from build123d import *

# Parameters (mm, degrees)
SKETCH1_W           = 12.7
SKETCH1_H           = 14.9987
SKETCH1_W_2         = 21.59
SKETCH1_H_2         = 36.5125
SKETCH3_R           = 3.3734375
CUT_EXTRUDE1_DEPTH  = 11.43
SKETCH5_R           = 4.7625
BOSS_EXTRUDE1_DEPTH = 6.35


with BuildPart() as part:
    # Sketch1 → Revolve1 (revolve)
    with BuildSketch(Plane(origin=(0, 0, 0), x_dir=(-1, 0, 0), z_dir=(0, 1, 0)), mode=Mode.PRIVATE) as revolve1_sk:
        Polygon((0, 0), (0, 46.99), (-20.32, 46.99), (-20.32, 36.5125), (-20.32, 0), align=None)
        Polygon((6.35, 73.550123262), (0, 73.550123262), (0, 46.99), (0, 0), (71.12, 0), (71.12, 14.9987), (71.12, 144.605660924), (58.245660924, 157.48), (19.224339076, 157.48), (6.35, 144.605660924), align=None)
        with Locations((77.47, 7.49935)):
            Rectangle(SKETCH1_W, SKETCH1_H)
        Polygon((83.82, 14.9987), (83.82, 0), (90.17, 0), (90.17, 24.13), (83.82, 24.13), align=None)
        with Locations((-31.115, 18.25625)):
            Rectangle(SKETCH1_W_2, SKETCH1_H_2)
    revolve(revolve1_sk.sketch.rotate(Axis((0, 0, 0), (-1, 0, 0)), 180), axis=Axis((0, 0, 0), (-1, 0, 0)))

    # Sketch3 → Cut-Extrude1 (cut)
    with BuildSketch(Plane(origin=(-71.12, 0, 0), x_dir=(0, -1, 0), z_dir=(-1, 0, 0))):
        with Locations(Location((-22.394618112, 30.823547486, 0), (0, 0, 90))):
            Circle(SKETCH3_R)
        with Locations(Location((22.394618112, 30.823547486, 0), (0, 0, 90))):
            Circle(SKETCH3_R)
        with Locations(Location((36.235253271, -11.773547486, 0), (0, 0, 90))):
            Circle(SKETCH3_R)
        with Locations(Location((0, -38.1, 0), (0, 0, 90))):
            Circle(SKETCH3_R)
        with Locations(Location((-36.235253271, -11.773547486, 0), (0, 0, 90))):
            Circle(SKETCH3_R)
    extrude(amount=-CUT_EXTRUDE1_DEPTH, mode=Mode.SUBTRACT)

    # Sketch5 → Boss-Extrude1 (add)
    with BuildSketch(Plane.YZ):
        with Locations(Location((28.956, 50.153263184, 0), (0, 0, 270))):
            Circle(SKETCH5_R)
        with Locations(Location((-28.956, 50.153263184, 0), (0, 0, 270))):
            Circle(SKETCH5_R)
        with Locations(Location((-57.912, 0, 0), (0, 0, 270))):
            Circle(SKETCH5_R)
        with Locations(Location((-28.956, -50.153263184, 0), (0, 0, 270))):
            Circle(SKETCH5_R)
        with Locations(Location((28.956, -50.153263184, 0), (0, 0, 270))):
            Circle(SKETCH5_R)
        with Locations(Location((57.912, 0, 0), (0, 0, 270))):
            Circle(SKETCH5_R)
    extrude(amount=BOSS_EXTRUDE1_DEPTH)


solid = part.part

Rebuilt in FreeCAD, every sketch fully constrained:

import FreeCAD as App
import Part
import Sketcher
Q = App.Units.Quantity

doc = App.newDocument("Part")
params = doc.addObject("Spreadsheet::Sheet", "Params")
for row, (alias, value) in enumerate([
    ("sketch1_width", "0.8 in"),
    ("sketch1_width2", "5.2 in"),
    ("sketch1_width3", "0.5 in"),
    ("sketch1_width4", "0.85 in"),
    ("sketch1_width5", "0.25 in"),
    ("revolution_angle", "360 deg"),
    ("sketch2_diameter", "0.265625 in"),
    ("pocket1_length", "0.45 in"),
    ("sketch3_diameter", "0.375 in"),
    ("pad1_length", "0.25 in"),
], start=1):
    params.set(f"A{row}", alias)
    params.set(f"B{row}", "=" + value)
    params.setAlias(f"B{row}", alias)

body = doc.addObject("PartDesign::Body", "Body")

sketch1 = body.newObject("Sketcher::SketchObject", "Sketch")
sketch1.AttachmentSupport = (doc.getObject("XZ_Plane"), [""])
sketch1.MapMode = "FlatFace"
sketch1.addGeometry([
    Part.LineSegment(App.Vector(0, 47, 0), App.Vector(20, 47, 0)),
    Part.LineSegment(App.Vector(20, 47, 0), App.Vector(20, 37, 0)),
    Part.LineSegment(App.Vector(20, 37, 0), App.Vector(42, 37, 0)),
    Part.LineSegment(App.Vector(42, 37, 0), App.Vector(42, 0, 0)),
    Part.LineSegment(App.Vector(42, 0, 0), App.Vector(-90, 0, 0)),
    Part.LineSegment(App.Vector(-90, 0, 0), App.Vector(-90, 24, 0)),
    Part.LineSegment(App.Vector(-90, 24, 0), App.Vector(-84, 24, 0)),
    Part.LineSegment(App.Vector(-84, 24, 0), App.Vector(-84, 15, 0)),
    Part.LineSegment(App.Vector(-84, 15, 0), App.Vector(-71, 15, 0)),
    Part.LineSegment(App.Vector(-71, 15, 0), App.Vector(-71, 145, 0)),
    Part.LineSegment(App.Vector(-71, 145, 0), App.Vector(-58, 157, 0)),
    Part.LineSegment(App.Vector(-58, 157, 0), App.Vector(-19, 157, 0)),
    Part.LineSegment(App.Vector(-19, 157, 0), App.Vector(-6, 145, 0)),
    Part.LineSegment(App.Vector(-6, 145, 0), App.Vector(-6, 74, 0)),
    Part.LineSegment(App.Vector(-6, 74, 0), App.Vector(0, 74, 0)),
    Part.LineSegment(App.Vector(0, 74, 0), App.Vector(0, 47, 0)),
], False)
sketch1.addConstraint([
    Sketcher.Constraint("Coincident", 0, 2, 1, 1),
    Sketcher.Constraint("Coincident", 1, 2, 2, 1),
    Sketcher.Constraint("Coincident", 2, 2, 3, 1),
    Sketcher.Constraint("Coincident", 3, 2, 4, 1),
    Sketcher.Constraint("Coincident", 4, 2, 5, 1),
    Sketcher.Constraint("Coincident", 5, 2, 6, 1),
    Sketcher.Constraint("Coincident", 6, 2, 7, 1),
    Sketcher.Constraint("Coincident", 7, 2, 8, 1),
    Sketcher.Constraint("Coincident", 8, 2, 9, 1),
    Sketcher.Constraint("Coincident", 9, 2, 10, 1),
    Sketcher.Constraint("Coincident", 10, 2, 11, 1),
    Sketcher.Constraint("Coincident", 11, 2, 12, 1),
    Sketcher.Constraint("Coincident", 12, 2, 13, 1),
    Sketcher.Constraint("Coincident", 13, 2, 14, 1),
    Sketcher.Constraint("Coincident", 14, 2, 15, 1),
    Sketcher.Constraint("Coincident", 15, 2, 0, 1),
    Sketcher.Constraint("Horizontal", 0),
    Sketcher.Constraint("Vertical", 1),
    Sketcher.Constraint("Horizontal", 2),
    Sketcher.Constraint("Vertical", 3),
    Sketcher.Constraint("Horizontal", 4),
    Sketcher.Constraint("Vertical", 5),
    Sketcher.Constraint("Horizontal", 6),
    Sketcher.Constraint("Vertical", 7),
    Sketcher.Constraint("Horizontal", 8),
    Sketcher.Constraint("Vertical", 9),
    Sketcher.Constraint("Horizontal", 11),
    Sketcher.Constraint("Vertical", 13),
    Sketcher.Constraint("Horizontal", 14),
    Sketcher.Constraint("Vertical", 15),
    Sketcher.Constraint("PointOnObject", 3, 2, -1),
    Sketcher.Constraint("PointOnObject", 14, 2, -2),
    Sketcher.Constraint("Perpendicular", 10, 12),
    Sketcher.Constraint("Horizontal", 9, 2, 12, 2),
    Sketcher.Constraint("Equal", 6, 14),
    Sketcher.Constraint("Equal", 10, 12),
    Sketcher.Constraint("DistanceX", 0, 1, 0, 2, Q("0.8 in")),
    Sketcher.Constraint("DistanceX", 4, 2, 4, 1, Q("5.2 in")),
    Sketcher.Constraint("DistanceX", 8, 1, 8, 2, Q("0.5 in")),
    Sketcher.Constraint("DistanceX", 2, 1, 2, 2, Q("0.85 in")),
    Sketcher.Constraint("DistanceX", 6, 1, 6, 2, Q("0.25 in")),
    Sketcher.Constraint("DistanceY", 5, 1, 5, 2, Q("0.95 in")),
    Sketcher.Constraint("DistanceY", -1, 1, 10, 2, Q("6.2 in")),
    Sketcher.Constraint("DistanceY", 5, 2, 0, 2, Q("0.9 in")),
    Sketcher.Constraint("DistanceY", 3, 2, 3, 1, Q("1.4375 in")),
    Sketcher.Constraint("DistanceY", 7, 2, 7, 1, Q("0.3595 in")),
    Sketcher.Constraint("DistanceX", 11, 1, 11, 2, 39.021322),
    Sketcher.Constraint("DistanceY", 13, 2, 13, 1, 71.055538),
])
sketch1.setExpression("Constraints[36]", "Params.sketch1_width")
sketch1.setExpression("Constraints[37]", "Params.sketch1_width2")
sketch1.setExpression("Constraints[38]", "Params.sketch1_width3")
sketch1.setExpression("Constraints[39]", "Params.sketch1_width4")
sketch1.setExpression("Constraints[40]", "Params.sketch1_width5")
revolution = body.newObject("PartDesign::Revolution", "Revolution")
revolution.Profile = sketch1
revolution.ReferenceAxis = (sketch1, ["H_Axis"])
revolution.setExpression("Angle", "Params.revolution_angle")

sketch2 = body.newObject("Sketcher::SketchObject", "Sketch001")
sketch2.AttachmentSupport = (doc.getObject("YZ_Plane"), [""])
sketch2.MapMode = "FlatFace"
sketch2.AttachmentOffset = App.Placement(App.Vector(0, 0, -2.8 * 25.4), App.Rotation())
sketch2.addGeometry([
    Part.Circle(App.Vector(22.4, 30.8, 0), App.Vector(0, 0, 1), 3.4),
    Part.Circle(App.Vector(-22.4, 30.8, 0), App.Vector(0, 0, 1), 3.4),
    Part.Circle(App.Vector(-36.2, -11.8, 0), App.Vector(0, 0, 1), 3.4),
    Part.Circle(App.Vector(0, -38.1, 0), App.Vector(0, 0, 1), 3.4),
    Part.Circle(App.Vector(36.2, -11.8, 0), App.Vector(0, 0, 1), 3.4),
], False)
sketch2.addConstraint([
    Sketcher.Constraint("Equal", 0, 1),
    Sketcher.Constraint("Equal", 1, 2),
    Sketcher.Constraint("Equal", 2, 3),
    Sketcher.Constraint("Equal", 3, 4),
    Sketcher.Constraint("Symmetric", 0, 3, 1, 3, -2),
    Sketcher.Constraint("Symmetric", 2, 3, 4, 3, -2),
    Sketcher.Constraint("PointOnObject", 3, 3, -2),
    Sketcher.Constraint("Diameter", 0, Q("0.265625 in")),
    Sketcher.Constraint("DistanceY", 3, 3, -1, 1, Q("1.5 in")),
    Sketcher.Constraint("DistanceX", -1, 1, 0, 3, 22.394618),
    Sketcher.Constraint("DistanceX", 2, 3, 0, 3, 58.629871),
    Sketcher.Constraint("DistanceY", -1, 1, 0, 3, 30.823547),
    Sketcher.Constraint("DistanceY", 2, 3, -1, 1, 11.773547),
])
sketch2.setExpression("Constraints[7]", "Params.sketch2_diameter")
pocket1 = body.newObject("PartDesign::Pocket", "Pocket")
pocket1.Profile = sketch2
pocket1.setExpression("Length", "Params.pocket1_length")
pocket1.Reversed = True

sketch3 = body.newObject("Sketcher::SketchObject", "Sketch002")
sketch3.AttachmentSupport = (doc.getObject("YZ_Plane"), [""])
sketch3.MapMode = "FlatFace"
sketch3.addGeometry([
    Part.Circle(App.Vector(29, 50.2, 0), App.Vector(0, 0, 1), 4.8),
    Part.Circle(App.Vector(-29, 50.2, 0), App.Vector(0, 0, 1), 4.8),
    Part.Circle(App.Vector(-57.9, 0, 0), App.Vector(0, 0, 1), 4.8),
    Part.Circle(App.Vector(-29, -50.2, 0), App.Vector(0, 0, 1), 4.8),
    Part.Circle(App.Vector(29, -50.2, 0), App.Vector(0, 0, 1), 4.8),
    Part.Circle(App.Vector(57.9, 0, 0), App.Vector(0, 0, 1), 4.8),
], False)
sketch3.addConstraint([
    Sketcher.Constraint("Equal", 0, 1),
    Sketcher.Constraint("Equal", 1, 2),
    Sketcher.Constraint("Equal", 2, 3),
    Sketcher.Constraint("Equal", 3, 4),
    Sketcher.Constraint("Equal", 4, 5),
    Sketcher.Constraint("Symmetric", 0, 3, 3, 3, -1, 1),
    Sketcher.Constraint("Symmetric", 1, 3, 4, 3, -1, 1),
    Sketcher.Constraint("Symmetric", 2, 3, 5, 3, -1, 1),
    Sketcher.Constraint("Symmetric", 0, 3, 1, 3, -2),
    Sketcher.Constraint("PointOnObject", 2, 3, -1),
    Sketcher.Constraint("Diameter", 0, Q("0.375 in")),
    Sketcher.Constraint("DistanceX", -1, 1, 0, 3, Q("1.14 in")),
    Sketcher.Constraint("DistanceX", 2, 3, -1, 1, Q("2.28 in")),
    Sketcher.Constraint("DistanceY", -1, 1, 0, 3, 50.153263),
])
sketch3.setExpression("Constraints[10]", "Params.sketch3_diameter")
pad1 = body.newObject("PartDesign::Pad", "Pad")
pad1.Profile = sketch3
pad1.setExpression("Length", "Params.pad1_length")

doc.recompute()
